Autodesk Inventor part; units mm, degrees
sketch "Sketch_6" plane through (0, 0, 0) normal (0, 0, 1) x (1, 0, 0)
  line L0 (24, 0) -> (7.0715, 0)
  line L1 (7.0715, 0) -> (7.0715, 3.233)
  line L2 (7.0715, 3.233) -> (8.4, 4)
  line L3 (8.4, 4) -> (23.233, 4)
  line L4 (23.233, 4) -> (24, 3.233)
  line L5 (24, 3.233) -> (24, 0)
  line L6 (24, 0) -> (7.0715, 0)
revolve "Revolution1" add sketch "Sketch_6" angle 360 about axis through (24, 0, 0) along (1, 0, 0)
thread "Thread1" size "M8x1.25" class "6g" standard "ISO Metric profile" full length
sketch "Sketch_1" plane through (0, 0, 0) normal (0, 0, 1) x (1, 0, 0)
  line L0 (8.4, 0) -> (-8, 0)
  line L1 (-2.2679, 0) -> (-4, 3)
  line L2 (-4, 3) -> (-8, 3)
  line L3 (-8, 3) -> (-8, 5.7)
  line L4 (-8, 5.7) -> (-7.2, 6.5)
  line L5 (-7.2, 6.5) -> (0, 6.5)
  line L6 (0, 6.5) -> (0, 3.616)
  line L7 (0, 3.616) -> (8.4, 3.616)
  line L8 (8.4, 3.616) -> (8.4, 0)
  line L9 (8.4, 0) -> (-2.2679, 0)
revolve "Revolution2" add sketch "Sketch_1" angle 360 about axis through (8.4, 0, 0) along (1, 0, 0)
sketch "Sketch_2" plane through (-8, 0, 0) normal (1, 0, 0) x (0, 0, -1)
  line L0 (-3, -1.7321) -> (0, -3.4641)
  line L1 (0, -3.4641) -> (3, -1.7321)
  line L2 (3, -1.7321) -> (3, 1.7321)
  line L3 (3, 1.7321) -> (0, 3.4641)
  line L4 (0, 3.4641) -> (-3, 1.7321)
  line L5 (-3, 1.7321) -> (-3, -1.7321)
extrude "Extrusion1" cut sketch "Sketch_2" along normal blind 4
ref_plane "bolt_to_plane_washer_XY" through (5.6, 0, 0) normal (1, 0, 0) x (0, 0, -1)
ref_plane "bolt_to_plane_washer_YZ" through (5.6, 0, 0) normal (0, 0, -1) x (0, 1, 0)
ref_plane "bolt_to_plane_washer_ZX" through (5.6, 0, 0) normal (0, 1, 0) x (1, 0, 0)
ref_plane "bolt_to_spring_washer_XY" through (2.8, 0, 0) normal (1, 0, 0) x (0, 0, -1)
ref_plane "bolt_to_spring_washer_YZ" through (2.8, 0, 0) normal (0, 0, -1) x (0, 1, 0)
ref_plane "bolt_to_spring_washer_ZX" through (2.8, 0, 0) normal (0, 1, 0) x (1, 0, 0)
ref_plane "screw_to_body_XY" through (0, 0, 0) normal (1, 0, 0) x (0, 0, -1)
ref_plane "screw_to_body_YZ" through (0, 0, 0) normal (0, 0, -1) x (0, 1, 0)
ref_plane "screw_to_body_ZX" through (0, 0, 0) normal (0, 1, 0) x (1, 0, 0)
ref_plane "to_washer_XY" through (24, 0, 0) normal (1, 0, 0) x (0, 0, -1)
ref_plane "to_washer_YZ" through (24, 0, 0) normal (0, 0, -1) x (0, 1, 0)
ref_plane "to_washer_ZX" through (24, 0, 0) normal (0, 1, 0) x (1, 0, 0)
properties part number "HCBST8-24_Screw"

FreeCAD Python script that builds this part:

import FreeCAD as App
import Part
import Sketcher
Q = App.Units.Quantity

doc = App.newDocument("Part")
body = doc.addObject("PartDesign::Body", "Body")

# Sketch on XY plane
sketch1 = body.newObject("Sketcher::SketchObject", "Sketch")
sketch1.AttachmentSupport = (doc.getObject("XY_Plane"), [""])
sketch1.MapMode = "FlatFace"
sketch1.addGeometry(Part.LineSegment(App.Vector(7.0715, 0, 0), App.Vector(24, 0, 0)), False)
sketch1.addGeometry(Part.LineSegment(App.Vector(24, 0, 0), App.Vector(24, 3.233, 0)), False)
sketch1.addGeometry(Part.LineSegment(App.Vector(24, 3.233, 0), App.Vector(23.233, 4, 0)), False)
sketch1.addGeometry(Part.LineSegment(App.Vector(23.233, 4, 0), App.Vector(8.4, 4, 0)), False)
sketch1.addGeometry(Part.LineSegment(App.Vector(8.4, 4, 0), App.Vector(7.0715, 3.233, 0)), False)
sketch1.addGeometry(Part.LineSegment(App.Vector(7.0715, 3.233, 0), App.Vector(7.0715, 0, 0)), False)
sketch1.addConstraint(Sketcher.Constraint("Coincident", 0, 2, 1, 1))
sketch1.addConstraint(Sketcher.Constraint("Coincident", 1, 2, 2, 1))
sketch1.addConstraint(Sketcher.Constraint("Coincident", 2, 2, 3, 1))
sketch1.addConstraint(Sketcher.Constraint("Coincident", 3, 2, 4, 1))
sketch1.addConstraint(Sketcher.Constraint("Coincident", 4, 2, 5, 1))
sketch1.addConstraint(Sketcher.Constraint("Coincident", 5, 2, 0, 1))
sketch1.addConstraint(Sketcher.Constraint("Horizontal", 0))
sketch1.addConstraint(Sketcher.Constraint("Vertical", 1))
sketch1.addConstraint(Sketcher.Constraint("Horizontal", 3))
sketch1.addConstraint(Sketcher.Constraint("Vertical", 5))
sketch1.addConstraint(Sketcher.Constraint("PointOnObject", 0, 2, -1))
sketch1.addConstraint(Sketcher.Constraint("Horizontal", 1, 2, 4, 2))
sketch1.addConstraint(Sketcher.Constraint("Angle", 2, Q("135 deg")))
sketch1.addConstraint(Sketcher.Constraint("Angle", 4, Q("-150.0003 deg")))
sketch1.addConstraint(Sketcher.Constraint("DistanceX", -1, 1, 0, 2, Q("24 mm")))
sketch1.addConstraint(Sketcher.Constraint("DistanceY", -1, 1, 2, 2, Q("4 mm")))
sketch1.addConstraint(Sketcher.Constraint("DistanceX", -1, 1, 3, 2, Q("8.4 mm")))
sketch1.addConstraint(Sketcher.Constraint("DistanceX", 3, 2, 3, 1, Q("14.833 mm")))
revolution = body.newObject("PartDesign::Revolution", "Revolution")
revolution.Profile = sketch1
revolution.ReferenceAxis = (sketch1, ["H_Axis"])
revolution.Angle = 360

# Sketch on XY plane
sketch2 = body.newObject("Sketcher::SketchObject", "Sketch001")
sketch2.AttachmentSupport = (doc.getObject("XY_Plane"), [""])
sketch2.MapMode = "FlatFace"
sketch2.addGeometry(Part.LineSegment(App.Vector(-2.2679, 0, 0), App.Vector(8.4, 0, 0)), False)
sketch2.addGeometry(Part.LineSegment(App.Vector(8.4, 0, 0), App.Vector(8.4, 3.616, 0)), False)
sketch2.addGeometry(Part.LineSegment(App.Vector(8.4, 3.616, 0), App.Vector(0, 3.616, 0)), False)
sketch2.addGeometry(Part.LineSegment(App.Vector(0, 3.616, 0), App.Vector(0, 6.5, 0)), False)
sketch2.addGeometry(Part.LineSegment(App.Vector(0, 6.5, 0), App.Vector(-7.2, 6.5, 0)), False)
sketch2.addGeometry(Part.LineSegment(App.Vector(-7.2, 6.5, 0), App.Vector(-8, 5.7, 0)), False)
sketch2.addGeometry(Part.LineSegment(App.Vector(-8, 5.7, 0), App.Vector(-8, 3, 0)), False)
sketch2.addGeometry(Part.LineSegment(App.Vector(-8, 3, 0), App.Vector(-4, 3, 0)), False)
sketch2.addGeometry(Part.LineSegment(App.Vector(-4, 3, 0), App.Vector(-2.2679, 0, 0)), False)
sketch2.addConstraint(Sketcher.Constraint("Coincident", 0, 2, 1, 1))
sketch2.addConstraint(Sketcher.Constraint("Coincident", 1, 2, 2, 1))
sketch2.addConstraint(Sketcher.Constraint("Coincident", 2, 2, 3, 1))
sketch2.addConstraint(Sketcher.Constraint("Coincident", 3, 2, 4, 1))
sketch2.addConstraint(Sketcher.Constraint("Coincident", 4, 2, 5, 1))
sketch2.addConstraint(Sketcher.Constraint("Coincident", 5, 2, 6, 1))
sketch2.addConstraint(Sketcher.Constraint("Coincident", 6, 2, 7, 1))
sketch2.addConstraint(Sketcher.Constraint("Coincident", 7, 2, 8, 1))
sketch2.addConstraint(Sketcher.Constraint("Coincident", 8, 2, 0, 1))
sketch2.addConstraint(Sketcher.Constraint("Horizontal", 0))
sketch2.addConstraint(Sketcher.Constraint("Vertical", 1))
sketch2.addConstraint(Sketcher.Constraint("Horizontal", 2))
sketch2.addConstraint(Sketcher.Constraint("Vertical", 3))
sketch2.addConstraint(Sketcher.Constraint("Horizontal", 4))
sketch2.addConstraint(Sketcher.Constraint("Vertical", 6))
sketch2.addConstraint(Sketcher.Constraint("Horizontal", 7))
sketch2.addConstraint(Sketcher.Constraint("PointOnObject", 0, 2, -1))
sketch2.addConstraint(Sketcher.Constraint("PointOnObject", 2, 2, -2))
sketch2.addConstraint(Sketcher.Constraint("DistanceX", 7, 1, 7, 2, Q("4 mm")))
sketch2.addConstraint(Sketcher.Constraint("Angle", 5, Q("-135 deg")))
sketch2.addConstraint(Sketcher.Constraint("Angle", 8, Q("-59.9993 deg")))
sketch2.addConstraint(Sketcher.Constraint("DistanceX", 2, 2, 2, 1, Q("8.4 mm")))
sketch2.addConstraint(Sketcher.Constraint("DistanceX", 4, 2, 4, 1, Q("7.2 mm")))
sketch2.addConstraint(Sketcher.Constraint("DistanceY", 6, 2, 6, 1, Q("2.7 mm")))
sketch2.addConstraint(Sketcher.Constraint("DistanceX", 5, 2, -1, 1, Q("8 mm")))
sketch2.addConstraint(Sketcher.Constraint("DistanceY", -1, 1, 6, 2, Q("3 mm")))
sketch2.addConstraint(Sketcher.Constraint("DistanceY", 1, 1, 1, 2, Q("3.616 mm")))
revolution2 = body.newObject("PartDesign::Revolution", "Revolution001")
revolution2.Profile = sketch2
revolution2.ReferenceAxis = (sketch2, ["H_Axis"])
revolution2.Angle = 360

# Sketch on YZ plane
sketch3 = body.newObject("Sketcher::SketchObject", "Sketch002")
sketch3.AttachmentSupport = (doc.getObject("YZ_Plane"), [""])
sketch3.MapMode = "FlatFace"
sketch3.AttachmentOffset = App.Placement(App.Vector(0, 0, -8), App.Rotation())
sketch3.addGeometry(Part.LineSegment(App.Vector(1.7321, 3, 0), App.Vector(-1.7321, 3, 0)), False)
sketch3.addGeometry(Part.LineSegment(App.Vector(-1.7321, 3, 0), App.Vector(-3.4641, 0, 0)), False)
sketch3.addGeometry(Part.LineSegment(App.Vector(-3.4641, 0, 0), App.Vector(-1.7321, -3, 0)), False)
sketch3.addGeometry(Part.LineSegment(App.Vector(-1.7321, -3, 0), App.Vector(1.7321, -3, 0)), False)
sketch3.addGeometry(Part.LineSegment(App.Vector(1.7321, -3, 0), App.Vector(3.4641, 0, 0)), False)
sketch3.addGeometry(Part.LineSegment(App.Vector(3.4641, 0, 0), App.Vector(1.7321, 3, 0)), False)
sketch3.addConstraint(Sketcher.Constraint("Coincident", 0, 2, 1, 1))
sketch3.addConstraint(Sketcher.Constraint("Coincident", 1, 2, 2, 1))
sketch3.addConstraint(Sketcher.Constraint("Coincident", 2, 2, 3, 1))
sketch3.addConstraint(Sketcher.Constraint("Coincident", 3, 2, 4, 1))
sketch3.addConstraint(Sketcher.Constraint("Coincident", 4, 2, 5, 1))
sketch3.addConstraint(Sketcher.Constraint("Coincident", 5, 2, 0, 1))
sketch3.addConstraint(Sketcher.Constraint("Horizontal", 0))
sketch3.addConstraint(Sketcher.Constraint("Horizontal", 3))
sketch3.addConstraint(Sketcher.Constraint("Symmetric", 0, 2, 3, 2, -1, 1))
sketch3.addConstraint(Sketcher.Constraint("Symmetric", 1, 2, 4, 2, -1, 1))
sketch3.addConstraint(Sketcher.Constraint("PointOnObject", 1, 2, -1))
sketch3.addConstraint(Sketcher.Constraint("Parallel", 2, 5))
sketch3.addConstraint(Sketcher.Constraint("Vertical", 0, 2, 2, 2))
sketch3.addConstraint(Sketcher.Constraint("Angle", 1, Q("-119.9993 deg")))
sketch3.addConstraint(Sketcher.Constraint("DistanceY", -1, 1, 0, 2, Q("3 mm")))
sketch3.addConstraint(Sketcher.Constraint("DistanceX", 0, 2, 0, 1, Q("3.4642 mm")))
pocket1 = body.newObject("PartDesign::Pocket", "Pocket")
pocket1.Profile = sketch3
pocket1.Length = 4
pocket1.Reversed = True

doc.recompute()
